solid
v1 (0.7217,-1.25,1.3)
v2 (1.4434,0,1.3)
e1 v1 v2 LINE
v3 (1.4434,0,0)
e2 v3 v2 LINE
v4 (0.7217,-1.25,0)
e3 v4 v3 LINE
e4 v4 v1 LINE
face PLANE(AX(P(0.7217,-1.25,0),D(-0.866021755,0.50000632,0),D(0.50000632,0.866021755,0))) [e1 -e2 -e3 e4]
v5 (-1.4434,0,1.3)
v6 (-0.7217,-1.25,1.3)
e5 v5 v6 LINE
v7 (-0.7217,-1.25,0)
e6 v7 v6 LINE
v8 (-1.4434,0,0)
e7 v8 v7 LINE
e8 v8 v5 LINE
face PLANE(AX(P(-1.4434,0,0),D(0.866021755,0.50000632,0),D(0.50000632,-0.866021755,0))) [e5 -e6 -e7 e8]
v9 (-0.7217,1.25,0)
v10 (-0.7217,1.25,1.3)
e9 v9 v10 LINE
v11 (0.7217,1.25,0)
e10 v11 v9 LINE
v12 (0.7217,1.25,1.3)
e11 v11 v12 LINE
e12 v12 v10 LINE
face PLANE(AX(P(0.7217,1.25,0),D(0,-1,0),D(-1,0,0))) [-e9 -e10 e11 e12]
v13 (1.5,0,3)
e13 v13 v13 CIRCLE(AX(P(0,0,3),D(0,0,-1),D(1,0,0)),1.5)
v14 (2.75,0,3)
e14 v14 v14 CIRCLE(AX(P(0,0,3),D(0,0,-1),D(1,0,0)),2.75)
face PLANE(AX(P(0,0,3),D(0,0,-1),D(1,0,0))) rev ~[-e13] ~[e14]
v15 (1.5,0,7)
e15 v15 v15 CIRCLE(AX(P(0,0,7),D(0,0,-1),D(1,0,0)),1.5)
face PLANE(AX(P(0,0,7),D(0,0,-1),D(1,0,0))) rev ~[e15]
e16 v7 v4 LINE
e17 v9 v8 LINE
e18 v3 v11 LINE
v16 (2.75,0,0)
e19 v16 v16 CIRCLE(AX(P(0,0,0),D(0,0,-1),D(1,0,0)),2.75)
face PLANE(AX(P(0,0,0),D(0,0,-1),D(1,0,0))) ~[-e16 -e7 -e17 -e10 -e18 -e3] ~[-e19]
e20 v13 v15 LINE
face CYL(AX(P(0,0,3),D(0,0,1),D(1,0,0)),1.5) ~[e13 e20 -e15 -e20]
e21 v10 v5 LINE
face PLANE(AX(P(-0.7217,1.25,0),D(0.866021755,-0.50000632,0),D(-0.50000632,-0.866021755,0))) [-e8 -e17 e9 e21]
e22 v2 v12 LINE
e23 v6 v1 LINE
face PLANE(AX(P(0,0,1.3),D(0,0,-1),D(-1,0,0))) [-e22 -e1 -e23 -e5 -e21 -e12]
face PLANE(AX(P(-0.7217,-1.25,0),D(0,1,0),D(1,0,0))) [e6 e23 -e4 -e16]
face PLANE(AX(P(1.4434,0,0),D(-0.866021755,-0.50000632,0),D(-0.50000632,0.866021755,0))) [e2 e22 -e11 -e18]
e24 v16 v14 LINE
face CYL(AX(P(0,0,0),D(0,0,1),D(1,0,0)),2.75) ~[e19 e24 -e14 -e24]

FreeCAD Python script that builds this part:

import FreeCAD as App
import Part
import Sketcher
from FreeCAD import Vector
Q = App.Units.Quantity

doc = App.newDocument("Part")
body = doc.addObject("PartDesign::Body", "Body")

# Sketch on XZ plane
sketch1 = doc.addObject("Sketcher::SketchObject", "Sketch")
body.addObject(sketch1)
sketch1.AttachmentSupport = (doc.XZ_Plane, [""])
sketch1.MapMode = "FlatFace"
sketch1.addGeometry(Part.LineSegment(Vector(2.8, 0, 0), Vector(0, 0, 0)), False)
sketch1.addGeometry(Part.LineSegment(Vector(0, 0, 0), Vector(0, 7, 0)), False)
sketch1.addGeometry(Part.LineSegment(Vector(0, 7, 0), Vector(1.5, 7, 0)), False)
sketch1.addGeometry(Part.LineSegment(Vector(1.5, 7, 0), Vector(1.5, 3, 0)), False)
sketch1.addGeometry(Part.LineSegment(Vector(1.5, 3, 0), Vector(2.8, 3, 0)), False)
sketch1.addGeometry(Part.LineSegment(Vector(2.8, 3, 0), Vector(2.8, 0, 0)), False)
sketch1.addConstraint(Sketcher.Constraint("Coincident", 0, 2, 1, 1))
sketch1.addConstraint(Sketcher.Constraint("Coincident", 1, 2, 2, 1))
sketch1.addConstraint(Sketcher.Constraint("Coincident", 2, 2, 3, 1))
sketch1.addConstraint(Sketcher.Constraint("Coincident", 3, 2, 4, 1))
sketch1.addConstraint(Sketcher.Constraint("Coincident", 4, 2, 5, 1))
sketch1.addConstraint(Sketcher.Constraint("Coincident", 5, 2, 0, 1))
sketch1.addConstraint(Sketcher.Constraint("Horizontal", 0))
sketch1.addConstraint(Sketcher.Constraint("Vertical", 1))
sketch1.addConstraint(Sketcher.Constraint("Horizontal", 2))
sketch1.addConstraint(Sketcher.Constraint("Vertical", 3))
sketch1.addConstraint(Sketcher.Constraint("Horizontal", 4))
sketch1.addConstraint(Sketcher.Constraint("Vertical", 5))
sketch1.addConstraint(Sketcher.Constraint("Coincident", 0, 2, -1, 1))
sketch1.addConstraint(Sketcher.Constraint("DistanceY", 3, 2, 3, 1, 4.0))
sketch1.addConstraint(Sketcher.Constraint("DistanceY", 5, 2, 5, 1, 3.0))
sketch1.addConstraint(Sketcher.Constraint("DistanceX", 2, 1, 2, 2, 1.5))
sketch1.addConstraint(Sketcher.Constraint("DistanceX", 0, 2, 0, 1, 2.75))
revolution = doc.addObject("PartDesign::Revolution", "Revolution")
body.addObject(revolution)
revolution.Profile = sketch1
revolution.ReferenceAxis = (sketch1, ["V_Axis"])
revolution.Angle = 360

# Sketch on XY plane
sketch2 = doc.addObject("Sketcher::SketchObject", "Sketch001")
body.addObject(sketch2)
sketch2.AttachmentSupport = (doc.XY_Plane, [""])
sketch2.MapMode = "FlatFace"
sketch2.addGeometry(Part.LineSegment(Vector(-1.4, 0, 0), Vector(-0.7, 1.2, 0)), False)
sketch2.addGeometry(Part.LineSegment(Vector(-0.7, 1.2, 0), Vector(0.7, 1.2, 0)), False)
sketch2.addGeometry(Part.LineSegment(Vector(0.7, 1.2, 0), Vector(1.4, 0, 0)), False)
sketch2.addGeometry(Part.LineSegment(Vector(1.4, 0, 0), Vector(0.7, -1.2, 0)), False)
sketch2.addGeometry(Part.LineSegment(Vector(0.7, -1.2, 0), Vector(-0.7, -1.2, 0)), False)
sketch2.addGeometry(Part.LineSegment(Vector(-0.7, -1.2, 0), Vector(-1.4, 0, 0)), False)
sketch2.addConstraint(Sketcher.Constraint("Coincident", 0, 2, 1, 1))
sketch2.addConstraint(Sketcher.Constraint("Coincident", 1, 2, 2, 1))
sketch2.addConstraint(Sketcher.Constraint("Coincident", 2, 2, 3, 1))
sketch2.addConstraint(Sketcher.Constraint("Coincident", 3, 2, 4, 1))
sketch2.addConstraint(Sketcher.Constraint("Coincident", 4, 2, 5, 1))
sketch2.addConstraint(Sketcher.Constraint("Coincident", 5, 2, 0, 1))
sketch2.addConstraint(Sketcher.Constraint("Horizontal", 1))
sketch2.addConstraint(Sketcher.Constraint("Horizontal", 4))
sketch2.addConstraint(Sketcher.Constraint("Symmetric", 0, 2, 3, 2, -1, 1))
sketch2.addConstraint(Sketcher.Constraint("Symmetric", 2, 2, 5, 2, -1, 1))
sketch2.addConstraint(Sketcher.Constraint("PointOnObject", 2, 2, -1))
sketch2.addConstraint(Sketcher.Constraint("Parallel", 2, 5))
sketch2.addConstraint(Sketcher.Constraint("Vertical", 1, 2, 3, 2))
sketch2.addConstraint(Sketcher.Constraint("DistanceY", 3, 2, 1, 2, 2.5))
sketch2.addConstraint(Sketcher.Constraint("Angle", 0, Q("59.9996 deg")))
sketch2.addConstraint(Sketcher.Constraint("DistanceX", 1, 1, 1, 2, 1.4434))
pocket1 = doc.addObject("PartDesign::Pocket", "Pocket")
body.addObject(pocket1)
pocket1.Profile = sketch2
pocket1.Length = 1.3
pocket1.Reversed = True

doc.recompute()
